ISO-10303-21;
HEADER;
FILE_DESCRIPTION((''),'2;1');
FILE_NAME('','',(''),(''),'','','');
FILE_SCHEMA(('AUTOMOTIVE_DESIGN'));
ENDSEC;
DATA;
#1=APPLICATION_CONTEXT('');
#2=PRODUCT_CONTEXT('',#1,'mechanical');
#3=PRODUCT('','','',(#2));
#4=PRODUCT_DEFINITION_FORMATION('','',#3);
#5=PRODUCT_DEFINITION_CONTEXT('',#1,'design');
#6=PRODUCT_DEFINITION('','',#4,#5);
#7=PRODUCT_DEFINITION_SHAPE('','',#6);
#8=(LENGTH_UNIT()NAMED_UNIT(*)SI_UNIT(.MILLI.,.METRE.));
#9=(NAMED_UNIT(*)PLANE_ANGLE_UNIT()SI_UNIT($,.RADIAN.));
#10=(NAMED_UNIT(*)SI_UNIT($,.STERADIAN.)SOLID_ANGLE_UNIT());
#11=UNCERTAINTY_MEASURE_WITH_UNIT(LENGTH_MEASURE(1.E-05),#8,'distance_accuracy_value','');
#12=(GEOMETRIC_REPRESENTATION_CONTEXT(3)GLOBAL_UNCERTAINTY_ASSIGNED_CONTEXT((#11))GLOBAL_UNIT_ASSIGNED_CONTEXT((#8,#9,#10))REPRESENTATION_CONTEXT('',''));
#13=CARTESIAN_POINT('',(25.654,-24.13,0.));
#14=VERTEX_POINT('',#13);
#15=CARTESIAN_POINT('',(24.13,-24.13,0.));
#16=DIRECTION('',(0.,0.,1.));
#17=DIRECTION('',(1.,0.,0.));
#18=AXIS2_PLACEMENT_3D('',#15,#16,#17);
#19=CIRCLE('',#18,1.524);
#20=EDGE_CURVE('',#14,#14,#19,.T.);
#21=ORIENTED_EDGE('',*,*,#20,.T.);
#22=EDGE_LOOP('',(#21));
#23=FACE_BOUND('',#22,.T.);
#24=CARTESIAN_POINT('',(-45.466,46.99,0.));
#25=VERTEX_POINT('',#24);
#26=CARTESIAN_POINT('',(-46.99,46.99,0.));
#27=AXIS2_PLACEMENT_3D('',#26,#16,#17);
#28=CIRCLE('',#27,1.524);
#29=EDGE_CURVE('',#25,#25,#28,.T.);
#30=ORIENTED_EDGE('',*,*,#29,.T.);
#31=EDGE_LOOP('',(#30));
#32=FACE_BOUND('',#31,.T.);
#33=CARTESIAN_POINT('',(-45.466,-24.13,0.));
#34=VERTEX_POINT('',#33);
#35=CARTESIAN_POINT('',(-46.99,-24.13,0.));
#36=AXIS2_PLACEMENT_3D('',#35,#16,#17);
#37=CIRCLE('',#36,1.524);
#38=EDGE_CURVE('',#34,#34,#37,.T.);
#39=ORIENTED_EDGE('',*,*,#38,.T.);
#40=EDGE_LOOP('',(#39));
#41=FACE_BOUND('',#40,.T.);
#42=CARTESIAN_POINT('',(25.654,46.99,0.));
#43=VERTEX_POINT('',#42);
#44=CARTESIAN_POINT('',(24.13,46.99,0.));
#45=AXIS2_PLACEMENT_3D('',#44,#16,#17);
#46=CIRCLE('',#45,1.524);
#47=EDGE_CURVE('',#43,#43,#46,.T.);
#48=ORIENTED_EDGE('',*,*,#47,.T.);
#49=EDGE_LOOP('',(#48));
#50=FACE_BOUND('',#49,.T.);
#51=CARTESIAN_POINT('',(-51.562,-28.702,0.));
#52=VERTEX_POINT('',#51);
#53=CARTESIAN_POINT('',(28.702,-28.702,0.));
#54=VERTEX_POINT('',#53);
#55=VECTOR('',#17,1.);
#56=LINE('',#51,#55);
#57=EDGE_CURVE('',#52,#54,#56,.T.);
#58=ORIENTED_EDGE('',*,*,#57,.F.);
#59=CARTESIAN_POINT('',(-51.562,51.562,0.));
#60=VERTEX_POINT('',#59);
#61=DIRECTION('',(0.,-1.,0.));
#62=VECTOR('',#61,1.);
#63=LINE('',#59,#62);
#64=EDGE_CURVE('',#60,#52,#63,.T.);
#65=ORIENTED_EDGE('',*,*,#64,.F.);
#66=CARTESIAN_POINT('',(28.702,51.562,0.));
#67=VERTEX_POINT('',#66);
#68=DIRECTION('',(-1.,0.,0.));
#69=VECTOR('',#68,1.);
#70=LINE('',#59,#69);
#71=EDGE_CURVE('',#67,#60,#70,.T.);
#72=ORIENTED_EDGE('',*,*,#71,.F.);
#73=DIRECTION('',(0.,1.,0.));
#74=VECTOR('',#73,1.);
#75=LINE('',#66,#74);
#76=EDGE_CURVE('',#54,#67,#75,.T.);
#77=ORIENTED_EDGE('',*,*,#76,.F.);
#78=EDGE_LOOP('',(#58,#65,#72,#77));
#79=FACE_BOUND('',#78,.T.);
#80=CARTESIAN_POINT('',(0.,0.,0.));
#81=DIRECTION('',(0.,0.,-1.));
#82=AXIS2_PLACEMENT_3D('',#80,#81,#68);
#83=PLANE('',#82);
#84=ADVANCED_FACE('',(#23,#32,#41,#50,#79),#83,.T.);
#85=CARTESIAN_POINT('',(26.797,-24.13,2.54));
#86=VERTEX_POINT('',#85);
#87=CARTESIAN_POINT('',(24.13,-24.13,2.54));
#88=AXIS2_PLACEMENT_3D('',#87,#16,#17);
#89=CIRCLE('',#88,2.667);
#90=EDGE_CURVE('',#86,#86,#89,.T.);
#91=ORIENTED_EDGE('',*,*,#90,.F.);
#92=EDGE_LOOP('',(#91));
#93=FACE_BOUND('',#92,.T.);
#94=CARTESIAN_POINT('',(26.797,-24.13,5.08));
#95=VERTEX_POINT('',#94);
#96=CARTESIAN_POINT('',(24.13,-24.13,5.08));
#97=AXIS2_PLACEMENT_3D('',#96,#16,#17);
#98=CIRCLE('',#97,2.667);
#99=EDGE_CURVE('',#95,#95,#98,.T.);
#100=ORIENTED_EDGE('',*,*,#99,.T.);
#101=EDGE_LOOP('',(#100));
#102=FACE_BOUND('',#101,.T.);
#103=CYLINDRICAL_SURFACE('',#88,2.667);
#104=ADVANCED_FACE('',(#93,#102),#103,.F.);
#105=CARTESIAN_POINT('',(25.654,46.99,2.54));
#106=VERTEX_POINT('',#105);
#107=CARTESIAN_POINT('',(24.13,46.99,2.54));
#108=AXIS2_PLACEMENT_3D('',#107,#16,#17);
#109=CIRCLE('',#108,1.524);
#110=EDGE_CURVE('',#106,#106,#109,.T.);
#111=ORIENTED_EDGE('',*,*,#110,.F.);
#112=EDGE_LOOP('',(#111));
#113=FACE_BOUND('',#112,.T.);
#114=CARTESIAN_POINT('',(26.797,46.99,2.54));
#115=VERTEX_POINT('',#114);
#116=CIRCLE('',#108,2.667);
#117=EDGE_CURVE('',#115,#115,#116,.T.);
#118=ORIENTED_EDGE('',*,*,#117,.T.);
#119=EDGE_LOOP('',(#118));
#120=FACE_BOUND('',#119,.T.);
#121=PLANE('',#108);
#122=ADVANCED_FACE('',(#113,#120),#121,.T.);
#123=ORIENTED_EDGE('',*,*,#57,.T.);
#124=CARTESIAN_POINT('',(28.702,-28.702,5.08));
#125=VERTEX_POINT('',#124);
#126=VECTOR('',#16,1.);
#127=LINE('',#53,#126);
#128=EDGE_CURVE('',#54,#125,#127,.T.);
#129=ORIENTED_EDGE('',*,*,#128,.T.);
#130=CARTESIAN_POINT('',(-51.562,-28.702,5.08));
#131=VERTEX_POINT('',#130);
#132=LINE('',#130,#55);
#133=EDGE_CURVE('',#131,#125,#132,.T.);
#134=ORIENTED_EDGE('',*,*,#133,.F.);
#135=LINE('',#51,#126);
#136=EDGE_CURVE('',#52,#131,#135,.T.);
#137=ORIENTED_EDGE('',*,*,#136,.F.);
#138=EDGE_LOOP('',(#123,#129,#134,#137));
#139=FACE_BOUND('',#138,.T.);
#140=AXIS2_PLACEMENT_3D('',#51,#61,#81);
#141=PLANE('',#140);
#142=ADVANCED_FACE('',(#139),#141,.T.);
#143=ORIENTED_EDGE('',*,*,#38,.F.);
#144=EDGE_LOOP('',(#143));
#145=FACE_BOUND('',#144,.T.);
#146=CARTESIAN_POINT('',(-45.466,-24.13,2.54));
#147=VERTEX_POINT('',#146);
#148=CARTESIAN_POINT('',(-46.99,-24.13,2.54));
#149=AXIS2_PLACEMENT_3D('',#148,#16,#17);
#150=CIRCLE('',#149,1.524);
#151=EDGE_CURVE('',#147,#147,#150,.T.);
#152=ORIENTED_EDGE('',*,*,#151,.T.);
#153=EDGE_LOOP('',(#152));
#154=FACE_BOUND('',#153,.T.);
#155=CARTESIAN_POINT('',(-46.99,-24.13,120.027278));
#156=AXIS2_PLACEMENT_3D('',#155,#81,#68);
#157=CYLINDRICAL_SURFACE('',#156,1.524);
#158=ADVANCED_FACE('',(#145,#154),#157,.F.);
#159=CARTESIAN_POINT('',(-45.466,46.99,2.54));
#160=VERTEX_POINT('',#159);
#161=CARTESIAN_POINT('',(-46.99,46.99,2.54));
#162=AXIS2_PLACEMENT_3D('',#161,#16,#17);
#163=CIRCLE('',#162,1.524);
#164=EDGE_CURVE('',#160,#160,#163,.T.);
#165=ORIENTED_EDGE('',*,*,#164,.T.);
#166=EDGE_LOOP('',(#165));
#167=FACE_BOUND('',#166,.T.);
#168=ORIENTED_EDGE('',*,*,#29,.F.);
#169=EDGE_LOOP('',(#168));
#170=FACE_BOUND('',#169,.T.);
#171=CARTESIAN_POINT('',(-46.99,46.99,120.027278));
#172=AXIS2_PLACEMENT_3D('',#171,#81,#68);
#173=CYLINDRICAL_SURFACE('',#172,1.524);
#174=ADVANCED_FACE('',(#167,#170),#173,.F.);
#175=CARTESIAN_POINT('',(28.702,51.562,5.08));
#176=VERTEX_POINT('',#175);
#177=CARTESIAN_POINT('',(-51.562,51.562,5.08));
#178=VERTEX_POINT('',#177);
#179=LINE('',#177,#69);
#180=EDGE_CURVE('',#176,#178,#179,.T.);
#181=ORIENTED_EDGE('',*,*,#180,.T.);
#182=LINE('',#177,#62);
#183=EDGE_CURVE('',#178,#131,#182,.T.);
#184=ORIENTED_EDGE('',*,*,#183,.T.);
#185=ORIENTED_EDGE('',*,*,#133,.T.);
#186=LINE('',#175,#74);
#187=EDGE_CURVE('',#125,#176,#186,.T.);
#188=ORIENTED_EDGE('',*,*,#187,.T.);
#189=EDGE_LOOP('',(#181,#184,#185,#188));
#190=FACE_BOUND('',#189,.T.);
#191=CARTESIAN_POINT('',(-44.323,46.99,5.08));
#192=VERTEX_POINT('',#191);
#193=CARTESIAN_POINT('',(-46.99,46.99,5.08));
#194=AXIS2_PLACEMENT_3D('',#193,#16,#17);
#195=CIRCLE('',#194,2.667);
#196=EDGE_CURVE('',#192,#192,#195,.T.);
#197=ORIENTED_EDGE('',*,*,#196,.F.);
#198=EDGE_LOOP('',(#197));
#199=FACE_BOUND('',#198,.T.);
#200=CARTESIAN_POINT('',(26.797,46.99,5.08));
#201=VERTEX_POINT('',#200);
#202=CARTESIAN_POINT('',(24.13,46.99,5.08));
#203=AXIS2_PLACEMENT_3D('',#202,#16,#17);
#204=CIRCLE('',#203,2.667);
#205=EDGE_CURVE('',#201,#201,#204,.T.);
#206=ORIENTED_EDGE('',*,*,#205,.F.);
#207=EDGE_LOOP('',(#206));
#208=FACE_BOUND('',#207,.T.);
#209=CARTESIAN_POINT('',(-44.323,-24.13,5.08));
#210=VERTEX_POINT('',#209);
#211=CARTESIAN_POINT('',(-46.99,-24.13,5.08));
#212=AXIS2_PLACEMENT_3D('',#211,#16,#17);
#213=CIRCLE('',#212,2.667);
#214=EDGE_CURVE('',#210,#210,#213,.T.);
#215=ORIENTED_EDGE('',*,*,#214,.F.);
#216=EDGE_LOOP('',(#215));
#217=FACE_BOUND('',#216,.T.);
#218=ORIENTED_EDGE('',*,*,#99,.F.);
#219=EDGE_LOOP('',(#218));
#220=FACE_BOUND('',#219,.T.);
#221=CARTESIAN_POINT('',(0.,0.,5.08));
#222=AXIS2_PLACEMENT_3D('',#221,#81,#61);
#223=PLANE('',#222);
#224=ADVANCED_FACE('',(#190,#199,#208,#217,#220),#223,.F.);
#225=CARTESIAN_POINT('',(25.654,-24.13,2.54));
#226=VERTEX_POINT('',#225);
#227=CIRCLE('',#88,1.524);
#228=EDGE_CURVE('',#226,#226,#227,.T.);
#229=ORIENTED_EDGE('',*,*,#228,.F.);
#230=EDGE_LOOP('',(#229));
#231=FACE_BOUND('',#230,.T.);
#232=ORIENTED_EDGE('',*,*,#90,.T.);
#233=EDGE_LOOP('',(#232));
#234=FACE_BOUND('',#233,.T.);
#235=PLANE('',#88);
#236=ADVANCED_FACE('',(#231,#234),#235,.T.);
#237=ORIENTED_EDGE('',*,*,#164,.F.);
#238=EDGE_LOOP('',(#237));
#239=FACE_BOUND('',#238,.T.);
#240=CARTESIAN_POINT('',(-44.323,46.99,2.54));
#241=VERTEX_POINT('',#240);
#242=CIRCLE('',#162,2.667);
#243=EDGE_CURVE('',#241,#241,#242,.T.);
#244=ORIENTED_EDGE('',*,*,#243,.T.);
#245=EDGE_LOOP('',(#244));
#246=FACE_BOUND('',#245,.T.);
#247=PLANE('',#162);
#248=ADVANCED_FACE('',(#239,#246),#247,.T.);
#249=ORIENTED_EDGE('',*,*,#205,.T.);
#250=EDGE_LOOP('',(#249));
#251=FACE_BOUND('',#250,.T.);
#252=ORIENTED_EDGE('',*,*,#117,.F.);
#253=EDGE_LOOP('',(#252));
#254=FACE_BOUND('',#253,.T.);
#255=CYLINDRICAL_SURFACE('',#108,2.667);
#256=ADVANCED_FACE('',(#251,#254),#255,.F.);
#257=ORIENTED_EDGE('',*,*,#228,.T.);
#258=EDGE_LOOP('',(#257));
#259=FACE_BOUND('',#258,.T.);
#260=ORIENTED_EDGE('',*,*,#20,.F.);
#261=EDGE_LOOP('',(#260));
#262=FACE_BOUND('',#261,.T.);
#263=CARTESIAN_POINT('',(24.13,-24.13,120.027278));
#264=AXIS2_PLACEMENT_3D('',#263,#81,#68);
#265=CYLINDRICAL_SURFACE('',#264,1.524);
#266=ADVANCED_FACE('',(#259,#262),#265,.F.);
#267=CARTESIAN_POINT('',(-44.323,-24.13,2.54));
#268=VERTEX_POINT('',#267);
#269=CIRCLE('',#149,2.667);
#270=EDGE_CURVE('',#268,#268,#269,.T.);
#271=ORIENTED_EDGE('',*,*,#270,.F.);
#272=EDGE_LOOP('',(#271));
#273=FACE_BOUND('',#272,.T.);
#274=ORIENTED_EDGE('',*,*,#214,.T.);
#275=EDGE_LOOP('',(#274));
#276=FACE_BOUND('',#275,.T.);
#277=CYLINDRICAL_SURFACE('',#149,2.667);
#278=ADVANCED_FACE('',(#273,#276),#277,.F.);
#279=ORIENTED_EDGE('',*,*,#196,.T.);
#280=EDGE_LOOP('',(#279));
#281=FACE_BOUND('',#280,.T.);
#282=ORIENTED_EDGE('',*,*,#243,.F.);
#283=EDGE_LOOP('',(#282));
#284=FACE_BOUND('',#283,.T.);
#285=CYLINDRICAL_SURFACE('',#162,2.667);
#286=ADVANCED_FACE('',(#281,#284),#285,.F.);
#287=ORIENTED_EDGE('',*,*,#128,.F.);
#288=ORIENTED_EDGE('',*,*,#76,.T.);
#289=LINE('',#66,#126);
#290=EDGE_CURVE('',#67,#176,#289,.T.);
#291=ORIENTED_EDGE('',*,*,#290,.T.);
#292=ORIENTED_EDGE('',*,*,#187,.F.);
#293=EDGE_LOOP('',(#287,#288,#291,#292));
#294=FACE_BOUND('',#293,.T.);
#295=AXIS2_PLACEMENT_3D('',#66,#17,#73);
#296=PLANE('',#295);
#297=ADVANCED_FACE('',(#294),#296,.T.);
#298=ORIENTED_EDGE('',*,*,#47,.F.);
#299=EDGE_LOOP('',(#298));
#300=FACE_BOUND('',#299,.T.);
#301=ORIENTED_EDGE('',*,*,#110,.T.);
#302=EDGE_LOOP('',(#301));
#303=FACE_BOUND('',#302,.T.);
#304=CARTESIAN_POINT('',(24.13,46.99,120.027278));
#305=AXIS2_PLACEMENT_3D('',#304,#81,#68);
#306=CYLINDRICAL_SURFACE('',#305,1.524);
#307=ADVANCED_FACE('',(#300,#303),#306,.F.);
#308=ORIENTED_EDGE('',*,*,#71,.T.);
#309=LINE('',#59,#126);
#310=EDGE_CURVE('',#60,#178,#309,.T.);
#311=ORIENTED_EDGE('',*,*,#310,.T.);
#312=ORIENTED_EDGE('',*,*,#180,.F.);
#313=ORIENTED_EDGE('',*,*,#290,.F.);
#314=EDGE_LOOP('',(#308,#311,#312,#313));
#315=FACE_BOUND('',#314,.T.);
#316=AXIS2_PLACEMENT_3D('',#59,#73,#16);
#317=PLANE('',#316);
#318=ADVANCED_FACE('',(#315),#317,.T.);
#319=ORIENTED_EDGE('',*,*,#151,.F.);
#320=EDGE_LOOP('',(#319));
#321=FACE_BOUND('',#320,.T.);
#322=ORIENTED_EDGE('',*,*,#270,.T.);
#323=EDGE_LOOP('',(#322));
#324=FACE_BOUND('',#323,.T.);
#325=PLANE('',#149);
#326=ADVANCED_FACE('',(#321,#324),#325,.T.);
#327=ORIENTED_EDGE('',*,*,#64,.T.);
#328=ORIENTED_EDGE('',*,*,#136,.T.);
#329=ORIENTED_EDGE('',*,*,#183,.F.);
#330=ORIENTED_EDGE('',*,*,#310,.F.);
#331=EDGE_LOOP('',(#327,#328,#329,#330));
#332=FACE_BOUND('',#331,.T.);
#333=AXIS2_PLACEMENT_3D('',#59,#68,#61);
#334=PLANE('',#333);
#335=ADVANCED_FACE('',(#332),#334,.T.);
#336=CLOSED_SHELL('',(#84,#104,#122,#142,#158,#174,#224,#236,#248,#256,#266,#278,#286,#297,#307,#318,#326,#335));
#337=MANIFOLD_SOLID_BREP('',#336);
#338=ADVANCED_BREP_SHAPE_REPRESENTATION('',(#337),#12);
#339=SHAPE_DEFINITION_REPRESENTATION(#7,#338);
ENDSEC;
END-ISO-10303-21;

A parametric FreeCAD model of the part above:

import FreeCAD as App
import Part
import Sketcher

V = App.Vector
Q = App.Units.Quantity


def add_polygon(sketch, points):
    """Adds a closed chain of lines whose ends are joined by coincident constraints."""
    first, n = sketch.GeometryCount, len(points)
    for a, b in zip(points, points[1:] + points[:1]):
        sketch.addGeometry(Part.LineSegment(App.Vector(*a, 0), App.Vector(*b, 0)), False)
    for i in range(n):
        sketch.addConstraint(Sketcher.Constraint("Coincident", first + i, 2, first + (i + 1) % n, 1))

doc = App.newDocument("Part")
body = doc.addObject("PartDesign::Body", "Body")

sketch1 = body.newObject("Sketcher::SketchObject", "Sketch")
sketch1.AttachmentSupport = (doc.getObject("XY_Plane"), [""])
sketch1.MapMode = "FlatFace"
add_polygon(sketch1, [(-52.1, 52.1), (-52.1, -29.2), (29.2, -29.2), (29.2, 52.1)])
sketch1.addGeometry(Part.Circle(V(-47, -24.1, 0), V(0, 0, 1), 1.5), False)
sketch1.addGeometry(Part.Circle(V(24.1, -24.1, 0), V(0, 0, 1), 1.5), False)
sketch1.addGeometry(Part.Circle(V(-47, 47, 0), V(0, 0, 1), 1.5), False)
sketch1.addGeometry(Part.Circle(V(24.1, 47, 0), V(0, 0, 1), 1.5), False)
sketch1.addConstraint(Sketcher.Constraint("Vertical", 0))
sketch1.addConstraint(Sketcher.Constraint("Horizontal", 1))
sketch1.addConstraint(Sketcher.Constraint("Vertical", 2))
sketch1.addConstraint(Sketcher.Constraint("Horizontal", 3))
sketch1.addConstraint(Sketcher.Constraint("Equal", 4, 5))
sketch1.addConstraint(Sketcher.Constraint("Equal", 5, 6))
sketch1.addConstraint(Sketcher.Constraint("Equal", 6, 7))
sketch1.addConstraint(Sketcher.Constraint("Horizontal", 4, 3, 5, 3))
sketch1.addConstraint(Sketcher.Constraint("Horizontal", 6, 3, 7, 3))
sketch1.addConstraint(Sketcher.Constraint("Vertical", 4, 3, 6, 3))
sketch1.addConstraint(Sketcher.Constraint("Vertical", 5, 3, 7, 3))
sketch1.addConstraint(Sketcher.Constraint("Equal", 3, 0))
sketch1.addConstraint(Sketcher.Constraint("Diameter", 4, Q("0.12 in")))
sketch1.addConstraint(Sketcher.Constraint("DistanceX", 1, 1, 1, 2, Q("3.2 in")))
sketch1.addConstraint(Sketcher.Constraint("DistanceX", 0, 2, 5, 3, Q("3 in")))
sketch1.addConstraint(Sketcher.Constraint("DistanceY", 0, 2, 6, 3, Q("3 in")))
sketch1.addConstraint(Sketcher.Constraint("DistanceX", 4, 3, 1, 2, Q("3 in")))
sketch1.addConstraint(Sketcher.Constraint("DistanceY", 5, 3, 2, 2, Q("3 in")))
sketch1.addConstraint(Sketcher.Constraint("DistanceX", 4, 3, -1, 1, Q("1.85 in")))
sketch1.addConstraint(Sketcher.Constraint("DistanceY", 4, 3, -1, 1, Q("0.95 in")))
pad1 = body.newObject("PartDesign::Pad", "Pad")
pad1.Profile = sketch1
pad1.Length = Q("0.2 in")

sketch2 = body.newObject("Sketcher::SketchObject", "Sketch001")
sketch2.AttachmentSupport = (doc.getObject("XY_Plane"), [""])
sketch2.MapMode = "FlatFace"
sketch2.AttachmentOffset = App.Placement(V(0, 0, 0.2 * 25.4), App.Rotation())
sketch2.addGeometry(Part.Circle(V(-47, -24.1, 0), V(0, 0, 1), 2.7), False)
sketch2.addGeometry(Part.Circle(V(-47, 47, 0), V(0, 0, 1), 2.7), False)
sketch2.addGeometry(Part.Circle(V(24.1, 47, 0), V(0, 0, 1), 2.7), False)
sketch2.addGeometry(Part.Circle(V(24.1, -24.1, 0), V(0, 0, 1), 2.7), False)
sketch2.addConstraint(Sketcher.Constraint("Equal", 0, 1))
sketch2.addConstraint(Sketcher.Constraint("Equal", 1, 2))
sketch2.addConstraint(Sketcher.Constraint("Equal", 2, 3))
sketch2.addConstraint(Sketcher.Constraint("Horizontal", 1, 3, 2, 3))
sketch2.addConstraint(Sketcher.Constraint("Horizontal", 0, 3, 3, 3))
sketch2.addConstraint(Sketcher.Constraint("Vertical", 0, 3, 1, 3))
sketch2.addConstraint(Sketcher.Constraint("Vertical", 2, 3, 3, 3))
sketch2.addConstraint(Sketcher.Constraint("Diameter", 0, Q("0.21 in")))
sketch2.addConstraint(Sketcher.Constraint("DistanceY", 0, 3, 1, 3, Q("2.8 in")))
sketch2.addConstraint(Sketcher.Constraint("DistanceX", 1, 3, 2, 3, Q("2.8 in")))
sketch2.addConstraint(Sketcher.Constraint("DistanceX", 0, 3, -1, 1, Q("1.85 in")))
sketch2.addConstraint(Sketcher.Constraint("DistanceY", 0, 3, -1, 1, Q("0.95 in")))
pocket1 = body.newObject("PartDesign::Pocket", "Pocket")
pocket1.Profile = sketch2
pocket1.Length = Q("0.1 in")

sketch3 = body.newObject("Sketcher::SketchObject", "Sketch002")
sketch3.AttachmentSupport = (doc.getObject("XY_Plane"), [""])
sketch3.MapMode = "FlatFace"
sketch3.AttachmentOffset = App.Placement(V(0, 0, 0.2 * 25.4), App.Rotation())
add_polygon(sketch3, [(-52, 52), (-52, -29), (29, -29), (29, 52)])
add_polygon(sketch3, [(29, -29), (-52, -29), (-52, 52), (29, 52)])
sketch3.addConstraint(Sketcher.Constraint("Vertical", 0))
sketch3.addConstraint(Sketcher.Constraint("Horizontal", 1))
sketch3.addConstraint(Sketcher.Constraint("Vertical", 2))
sketch3.addConstraint(Sketcher.Constraint("Horizontal", 3))
sketch3.addConstraint(Sketcher.Constraint("Horizontal", 4))
sketch3.addConstraint(Sketcher.Constraint("Vertical", 5))
sketch3.addConstraint(Sketcher.Constraint("Horizontal", 6))
sketch3.addConstraint(Sketcher.Constraint("Vertical", 7))
sketch3.addConstraint(Sketcher.Constraint("Equal", 3, 0))
sketch3.addConstraint(Sketcher.Constraint("Equal", 6, 5))
sketch3.addConstraint(Sketcher.Constraint("DistanceX", 1, 1, 1, 2, Q("3.2 in")))
sketch3.addConstraint(Sketcher.Constraint("DistanceX", 4, 2, 4, 1, Q("3.16 in")))
sketch3.addConstraint(Sketcher.Constraint("DistanceX", 0, 2, -1, 1, Q("2.05 in")))
sketch3.addConstraint(Sketcher.Constraint("DistanceY", 0, 2, -1, 1, Q("1.15 in")))
sketch3.addConstraint(Sketcher.Constraint("DistanceX", 4, 2, -1, 1, Q("2.03 in")))
sketch3.addConstraint(Sketcher.Constraint("DistanceY", 4, 2, -1, 1, Q("1.13 in")))
pocket2 = body.newObject("PartDesign::Pocket", "Pocket001")
pocket2.Profile = sketch3
pocket2.Type = "ThroughAll"

doc.recompute()
